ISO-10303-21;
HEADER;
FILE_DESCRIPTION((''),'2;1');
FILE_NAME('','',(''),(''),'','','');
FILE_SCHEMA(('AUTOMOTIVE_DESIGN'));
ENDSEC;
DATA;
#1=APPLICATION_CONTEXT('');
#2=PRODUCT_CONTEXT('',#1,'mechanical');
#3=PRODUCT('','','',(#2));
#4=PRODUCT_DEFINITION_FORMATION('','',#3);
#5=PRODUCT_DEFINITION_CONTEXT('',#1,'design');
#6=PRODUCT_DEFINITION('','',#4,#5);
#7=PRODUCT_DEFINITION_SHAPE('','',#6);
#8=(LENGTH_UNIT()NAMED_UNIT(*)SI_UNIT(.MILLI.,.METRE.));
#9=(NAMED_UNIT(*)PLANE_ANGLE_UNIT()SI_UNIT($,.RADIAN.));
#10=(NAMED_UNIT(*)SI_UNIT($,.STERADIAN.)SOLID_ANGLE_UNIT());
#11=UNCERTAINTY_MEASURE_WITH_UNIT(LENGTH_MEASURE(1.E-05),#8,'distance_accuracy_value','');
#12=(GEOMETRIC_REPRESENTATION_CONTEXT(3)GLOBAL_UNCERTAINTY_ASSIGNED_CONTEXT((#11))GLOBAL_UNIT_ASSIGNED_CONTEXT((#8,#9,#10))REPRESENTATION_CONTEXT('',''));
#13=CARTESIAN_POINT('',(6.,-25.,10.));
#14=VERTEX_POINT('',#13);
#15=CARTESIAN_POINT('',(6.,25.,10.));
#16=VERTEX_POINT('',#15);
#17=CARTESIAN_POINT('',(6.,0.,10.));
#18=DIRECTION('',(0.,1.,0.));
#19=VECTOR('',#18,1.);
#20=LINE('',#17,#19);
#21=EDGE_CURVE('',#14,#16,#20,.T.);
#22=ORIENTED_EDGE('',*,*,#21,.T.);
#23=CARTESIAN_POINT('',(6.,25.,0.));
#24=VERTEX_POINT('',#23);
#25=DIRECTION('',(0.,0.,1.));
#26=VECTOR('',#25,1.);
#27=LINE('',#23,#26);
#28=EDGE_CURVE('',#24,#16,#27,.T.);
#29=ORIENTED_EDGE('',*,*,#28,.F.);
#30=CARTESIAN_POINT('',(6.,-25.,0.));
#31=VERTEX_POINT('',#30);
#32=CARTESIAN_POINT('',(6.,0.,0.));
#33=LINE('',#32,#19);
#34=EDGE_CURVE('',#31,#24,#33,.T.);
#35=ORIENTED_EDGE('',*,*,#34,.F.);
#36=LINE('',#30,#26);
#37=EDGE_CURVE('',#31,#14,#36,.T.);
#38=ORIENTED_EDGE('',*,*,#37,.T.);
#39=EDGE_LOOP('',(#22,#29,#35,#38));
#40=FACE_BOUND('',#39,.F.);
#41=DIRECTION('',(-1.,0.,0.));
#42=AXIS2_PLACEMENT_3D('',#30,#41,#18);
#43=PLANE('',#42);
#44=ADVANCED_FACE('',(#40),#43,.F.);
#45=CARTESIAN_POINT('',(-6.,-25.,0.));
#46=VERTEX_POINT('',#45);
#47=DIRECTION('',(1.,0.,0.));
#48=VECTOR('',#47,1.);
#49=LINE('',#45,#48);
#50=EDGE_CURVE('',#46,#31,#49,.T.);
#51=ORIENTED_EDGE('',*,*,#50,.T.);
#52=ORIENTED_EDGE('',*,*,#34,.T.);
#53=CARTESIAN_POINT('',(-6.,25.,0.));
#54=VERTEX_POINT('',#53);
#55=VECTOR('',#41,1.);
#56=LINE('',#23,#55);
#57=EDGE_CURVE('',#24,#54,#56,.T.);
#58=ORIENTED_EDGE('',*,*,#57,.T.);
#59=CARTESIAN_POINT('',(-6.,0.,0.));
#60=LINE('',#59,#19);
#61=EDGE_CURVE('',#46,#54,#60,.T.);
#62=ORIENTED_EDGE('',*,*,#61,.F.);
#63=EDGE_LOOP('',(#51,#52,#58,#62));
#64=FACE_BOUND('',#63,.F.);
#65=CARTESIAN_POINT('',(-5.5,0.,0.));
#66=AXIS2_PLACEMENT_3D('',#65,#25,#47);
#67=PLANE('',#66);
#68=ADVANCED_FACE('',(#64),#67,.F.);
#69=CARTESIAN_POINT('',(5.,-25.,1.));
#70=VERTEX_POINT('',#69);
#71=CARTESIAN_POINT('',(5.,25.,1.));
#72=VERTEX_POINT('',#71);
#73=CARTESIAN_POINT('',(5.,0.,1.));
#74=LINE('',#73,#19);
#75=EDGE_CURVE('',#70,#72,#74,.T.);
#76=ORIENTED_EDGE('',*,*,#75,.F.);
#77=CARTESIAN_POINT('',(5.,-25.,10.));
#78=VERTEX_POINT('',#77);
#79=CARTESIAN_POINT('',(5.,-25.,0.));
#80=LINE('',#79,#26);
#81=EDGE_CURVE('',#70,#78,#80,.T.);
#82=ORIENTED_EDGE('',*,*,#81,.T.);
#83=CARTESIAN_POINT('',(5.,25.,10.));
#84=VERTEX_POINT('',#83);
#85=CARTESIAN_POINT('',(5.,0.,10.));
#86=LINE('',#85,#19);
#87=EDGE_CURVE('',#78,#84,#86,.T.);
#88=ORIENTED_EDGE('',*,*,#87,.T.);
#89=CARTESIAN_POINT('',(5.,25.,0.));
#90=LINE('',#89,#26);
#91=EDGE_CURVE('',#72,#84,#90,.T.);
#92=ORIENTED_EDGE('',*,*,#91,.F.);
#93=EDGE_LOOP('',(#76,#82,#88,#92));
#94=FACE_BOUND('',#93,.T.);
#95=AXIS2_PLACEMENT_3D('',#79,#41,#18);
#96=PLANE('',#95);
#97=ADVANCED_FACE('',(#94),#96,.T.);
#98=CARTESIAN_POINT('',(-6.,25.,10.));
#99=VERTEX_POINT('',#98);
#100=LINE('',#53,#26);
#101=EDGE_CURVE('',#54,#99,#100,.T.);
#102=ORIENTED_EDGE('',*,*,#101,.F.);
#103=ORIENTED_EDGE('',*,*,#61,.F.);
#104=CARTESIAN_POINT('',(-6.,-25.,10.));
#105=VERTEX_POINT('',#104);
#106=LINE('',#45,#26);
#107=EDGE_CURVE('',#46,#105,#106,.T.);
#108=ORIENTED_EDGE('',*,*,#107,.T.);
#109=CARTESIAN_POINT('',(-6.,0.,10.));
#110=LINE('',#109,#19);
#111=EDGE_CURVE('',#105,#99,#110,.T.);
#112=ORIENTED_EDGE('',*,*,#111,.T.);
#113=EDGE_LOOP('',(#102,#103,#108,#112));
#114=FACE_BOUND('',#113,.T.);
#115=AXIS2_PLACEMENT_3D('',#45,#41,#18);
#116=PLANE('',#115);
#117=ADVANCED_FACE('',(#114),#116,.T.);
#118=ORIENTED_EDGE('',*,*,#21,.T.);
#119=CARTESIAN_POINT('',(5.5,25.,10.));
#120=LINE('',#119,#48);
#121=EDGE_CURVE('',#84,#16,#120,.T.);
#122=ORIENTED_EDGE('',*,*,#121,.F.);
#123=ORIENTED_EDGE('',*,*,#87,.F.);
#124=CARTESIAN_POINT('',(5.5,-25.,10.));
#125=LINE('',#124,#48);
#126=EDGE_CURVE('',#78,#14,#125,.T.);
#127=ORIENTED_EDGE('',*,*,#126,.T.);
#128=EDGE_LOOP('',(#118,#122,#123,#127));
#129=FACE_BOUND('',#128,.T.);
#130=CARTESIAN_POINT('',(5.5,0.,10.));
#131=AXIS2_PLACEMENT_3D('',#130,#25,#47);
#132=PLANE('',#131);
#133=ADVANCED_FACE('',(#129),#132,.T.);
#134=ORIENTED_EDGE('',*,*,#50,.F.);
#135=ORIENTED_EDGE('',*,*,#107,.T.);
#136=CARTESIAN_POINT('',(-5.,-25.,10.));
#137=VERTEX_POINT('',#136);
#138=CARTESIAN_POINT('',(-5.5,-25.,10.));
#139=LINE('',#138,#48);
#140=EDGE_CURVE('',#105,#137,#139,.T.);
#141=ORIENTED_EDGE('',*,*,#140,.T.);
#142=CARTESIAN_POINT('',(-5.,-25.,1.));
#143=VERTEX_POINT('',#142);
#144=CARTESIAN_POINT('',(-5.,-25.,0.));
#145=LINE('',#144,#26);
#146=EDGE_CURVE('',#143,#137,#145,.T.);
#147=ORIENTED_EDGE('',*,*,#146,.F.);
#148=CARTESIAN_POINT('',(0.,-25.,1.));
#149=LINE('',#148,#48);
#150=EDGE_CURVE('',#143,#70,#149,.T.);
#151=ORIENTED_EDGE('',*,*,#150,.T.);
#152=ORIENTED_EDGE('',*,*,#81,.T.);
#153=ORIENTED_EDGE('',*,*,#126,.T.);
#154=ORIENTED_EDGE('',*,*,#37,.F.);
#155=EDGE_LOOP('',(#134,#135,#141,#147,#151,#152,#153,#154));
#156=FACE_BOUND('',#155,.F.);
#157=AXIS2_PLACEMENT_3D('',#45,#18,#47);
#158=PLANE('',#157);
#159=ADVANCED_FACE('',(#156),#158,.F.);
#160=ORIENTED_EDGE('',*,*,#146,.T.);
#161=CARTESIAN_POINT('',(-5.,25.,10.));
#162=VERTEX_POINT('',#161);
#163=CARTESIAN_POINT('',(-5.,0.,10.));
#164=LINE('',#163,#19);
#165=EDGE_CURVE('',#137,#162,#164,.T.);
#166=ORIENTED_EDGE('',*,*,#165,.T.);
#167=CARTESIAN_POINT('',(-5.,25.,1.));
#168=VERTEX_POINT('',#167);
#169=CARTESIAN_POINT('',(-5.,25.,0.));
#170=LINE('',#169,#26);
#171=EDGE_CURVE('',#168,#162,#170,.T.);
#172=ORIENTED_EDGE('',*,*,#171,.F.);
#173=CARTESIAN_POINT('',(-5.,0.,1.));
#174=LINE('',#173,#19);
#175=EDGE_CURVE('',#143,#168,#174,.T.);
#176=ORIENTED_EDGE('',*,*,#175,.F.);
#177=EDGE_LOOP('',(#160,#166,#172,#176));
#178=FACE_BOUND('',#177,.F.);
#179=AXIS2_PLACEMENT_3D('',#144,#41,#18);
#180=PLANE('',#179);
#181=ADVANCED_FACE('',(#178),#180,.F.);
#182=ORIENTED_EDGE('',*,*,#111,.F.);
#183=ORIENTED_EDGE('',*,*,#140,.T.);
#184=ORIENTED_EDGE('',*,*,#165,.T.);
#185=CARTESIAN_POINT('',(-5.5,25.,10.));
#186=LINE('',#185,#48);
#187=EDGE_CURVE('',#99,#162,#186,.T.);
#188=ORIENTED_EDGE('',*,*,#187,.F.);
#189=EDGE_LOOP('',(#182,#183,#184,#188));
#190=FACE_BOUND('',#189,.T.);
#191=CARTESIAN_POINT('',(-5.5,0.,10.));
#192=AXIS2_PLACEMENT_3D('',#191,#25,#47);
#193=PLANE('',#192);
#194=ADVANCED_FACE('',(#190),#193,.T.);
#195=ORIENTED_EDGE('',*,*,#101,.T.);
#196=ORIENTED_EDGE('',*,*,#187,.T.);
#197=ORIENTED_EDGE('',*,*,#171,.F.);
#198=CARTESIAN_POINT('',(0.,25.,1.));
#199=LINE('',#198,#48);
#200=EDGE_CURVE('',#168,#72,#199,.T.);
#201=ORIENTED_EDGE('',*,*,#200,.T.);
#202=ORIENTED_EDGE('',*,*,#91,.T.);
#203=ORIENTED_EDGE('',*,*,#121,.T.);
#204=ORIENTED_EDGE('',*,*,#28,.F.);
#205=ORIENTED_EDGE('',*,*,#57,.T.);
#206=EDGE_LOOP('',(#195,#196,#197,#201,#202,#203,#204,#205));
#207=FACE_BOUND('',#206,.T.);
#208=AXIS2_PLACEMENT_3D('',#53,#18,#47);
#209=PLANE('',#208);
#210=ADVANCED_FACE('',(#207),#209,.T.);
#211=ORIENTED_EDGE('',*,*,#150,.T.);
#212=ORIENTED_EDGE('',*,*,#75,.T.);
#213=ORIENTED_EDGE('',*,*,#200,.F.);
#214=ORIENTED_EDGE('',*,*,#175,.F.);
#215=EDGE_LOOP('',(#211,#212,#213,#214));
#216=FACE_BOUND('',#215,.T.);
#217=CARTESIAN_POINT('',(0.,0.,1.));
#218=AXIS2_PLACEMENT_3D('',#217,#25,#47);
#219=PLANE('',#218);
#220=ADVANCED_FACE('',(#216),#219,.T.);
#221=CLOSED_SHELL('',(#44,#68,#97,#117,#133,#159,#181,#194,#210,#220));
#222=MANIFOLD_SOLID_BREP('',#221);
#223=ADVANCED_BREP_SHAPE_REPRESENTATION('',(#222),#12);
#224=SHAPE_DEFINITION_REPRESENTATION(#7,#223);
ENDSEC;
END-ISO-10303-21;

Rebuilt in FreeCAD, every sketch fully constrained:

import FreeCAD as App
import Part
import Sketcher
Q = App.Units.Quantity


def add_polygon(sketch, points):
    """Adds a closed chain of lines whose ends are joined by coincident constraints."""
    first, n = sketch.GeometryCount, len(points)
    for a, b in zip(points, points[1:] + points[:1]):
        sketch.addGeometry(Part.LineSegment(App.Vector(*a, 0), App.Vector(*b, 0)), False)
    for i in range(n):
        sketch.addConstraint(Sketcher.Constraint("Coincident", first + i, 2, first + (i + 1) % n, 1))

doc = App.newDocument("Part")
body = doc.addObject("PartDesign::Body", "Body")

sketch1 = body.newObject("Sketcher::SketchObject", "Sketch")
sketch1.AttachmentSupport = (doc.getObject("XY_Plane"), [""])
sketch1.MapMode = "FlatFace"
add_polygon(sketch1, [(-5, 25), (-5, -25), (5, -25), (5, 25)])
sketch1.addConstraint([
    Sketcher.Constraint("Vertical", 0),
    Sketcher.Constraint("Horizontal", 1),
    Sketcher.Constraint("Vertical", 2),
    Sketcher.Constraint("Horizontal", 3),
    Sketcher.Constraint("Symmetric", 0, 2, 2, 2, -1, 1),
    Sketcher.Constraint("DistanceX", 1, 1, 1, 2, Q("10 mm")),
    Sketcher.Constraint("DistanceY", 0, 2, 0, 1, Q("50 mm")),
])
pad1 = body.newObject("PartDesign::Pad", "Pad")
pad1.Profile = sketch1
pad1.Length = 1

sketch2 = body.newObject("Sketcher::SketchObject", "Sketch001")
sketch2.AttachmentSupport = (doc.getObject("XY_Plane"), [""])
sketch2.MapMode = "FlatFace"
add_polygon(sketch2, [(-6, 25), (-6, -25), (-5, -25), (-5, 25)])
add_polygon(sketch2, [(5, 25), (5, -25), (6, -25), (6, 25)])
sketch2.addConstraint([
    Sketcher.Constraint("Vertical", 0),
    Sketcher.Constraint("Horizontal", 1),
    Sketcher.Constraint("Vertical", 2),
    Sketcher.Constraint("Horizontal", 3),
    Sketcher.Constraint("Vertical", 4),
    Sketcher.Constraint("Horizontal", 5),
    Sketcher.Constraint("Vertical", 6),
    Sketcher.Constraint("Horizontal", 7),
    Sketcher.Constraint("Symmetric", 2, 2, 4, 2, -1, 1),
    Sketcher.Constraint("Symmetric", 0, 2, 6, 2, -1, 1),
    Sketcher.Constraint("Horizontal", 1, 2, 4, 2),
    Sketcher.Constraint("DistanceX", 1, 1, 1, 2, Q("1 mm")),
    Sketcher.Constraint("DistanceY", 0, 2, 0, 1, Q("50 mm")),
    Sketcher.Constraint("DistanceX", 0, 2, -1, 1, Q("6 mm")),
])
pad2 = body.newObject("PartDesign::Pad", "Pad001")
pad2.Profile = sketch2
pad2.Length = 10

doc.recompute()
